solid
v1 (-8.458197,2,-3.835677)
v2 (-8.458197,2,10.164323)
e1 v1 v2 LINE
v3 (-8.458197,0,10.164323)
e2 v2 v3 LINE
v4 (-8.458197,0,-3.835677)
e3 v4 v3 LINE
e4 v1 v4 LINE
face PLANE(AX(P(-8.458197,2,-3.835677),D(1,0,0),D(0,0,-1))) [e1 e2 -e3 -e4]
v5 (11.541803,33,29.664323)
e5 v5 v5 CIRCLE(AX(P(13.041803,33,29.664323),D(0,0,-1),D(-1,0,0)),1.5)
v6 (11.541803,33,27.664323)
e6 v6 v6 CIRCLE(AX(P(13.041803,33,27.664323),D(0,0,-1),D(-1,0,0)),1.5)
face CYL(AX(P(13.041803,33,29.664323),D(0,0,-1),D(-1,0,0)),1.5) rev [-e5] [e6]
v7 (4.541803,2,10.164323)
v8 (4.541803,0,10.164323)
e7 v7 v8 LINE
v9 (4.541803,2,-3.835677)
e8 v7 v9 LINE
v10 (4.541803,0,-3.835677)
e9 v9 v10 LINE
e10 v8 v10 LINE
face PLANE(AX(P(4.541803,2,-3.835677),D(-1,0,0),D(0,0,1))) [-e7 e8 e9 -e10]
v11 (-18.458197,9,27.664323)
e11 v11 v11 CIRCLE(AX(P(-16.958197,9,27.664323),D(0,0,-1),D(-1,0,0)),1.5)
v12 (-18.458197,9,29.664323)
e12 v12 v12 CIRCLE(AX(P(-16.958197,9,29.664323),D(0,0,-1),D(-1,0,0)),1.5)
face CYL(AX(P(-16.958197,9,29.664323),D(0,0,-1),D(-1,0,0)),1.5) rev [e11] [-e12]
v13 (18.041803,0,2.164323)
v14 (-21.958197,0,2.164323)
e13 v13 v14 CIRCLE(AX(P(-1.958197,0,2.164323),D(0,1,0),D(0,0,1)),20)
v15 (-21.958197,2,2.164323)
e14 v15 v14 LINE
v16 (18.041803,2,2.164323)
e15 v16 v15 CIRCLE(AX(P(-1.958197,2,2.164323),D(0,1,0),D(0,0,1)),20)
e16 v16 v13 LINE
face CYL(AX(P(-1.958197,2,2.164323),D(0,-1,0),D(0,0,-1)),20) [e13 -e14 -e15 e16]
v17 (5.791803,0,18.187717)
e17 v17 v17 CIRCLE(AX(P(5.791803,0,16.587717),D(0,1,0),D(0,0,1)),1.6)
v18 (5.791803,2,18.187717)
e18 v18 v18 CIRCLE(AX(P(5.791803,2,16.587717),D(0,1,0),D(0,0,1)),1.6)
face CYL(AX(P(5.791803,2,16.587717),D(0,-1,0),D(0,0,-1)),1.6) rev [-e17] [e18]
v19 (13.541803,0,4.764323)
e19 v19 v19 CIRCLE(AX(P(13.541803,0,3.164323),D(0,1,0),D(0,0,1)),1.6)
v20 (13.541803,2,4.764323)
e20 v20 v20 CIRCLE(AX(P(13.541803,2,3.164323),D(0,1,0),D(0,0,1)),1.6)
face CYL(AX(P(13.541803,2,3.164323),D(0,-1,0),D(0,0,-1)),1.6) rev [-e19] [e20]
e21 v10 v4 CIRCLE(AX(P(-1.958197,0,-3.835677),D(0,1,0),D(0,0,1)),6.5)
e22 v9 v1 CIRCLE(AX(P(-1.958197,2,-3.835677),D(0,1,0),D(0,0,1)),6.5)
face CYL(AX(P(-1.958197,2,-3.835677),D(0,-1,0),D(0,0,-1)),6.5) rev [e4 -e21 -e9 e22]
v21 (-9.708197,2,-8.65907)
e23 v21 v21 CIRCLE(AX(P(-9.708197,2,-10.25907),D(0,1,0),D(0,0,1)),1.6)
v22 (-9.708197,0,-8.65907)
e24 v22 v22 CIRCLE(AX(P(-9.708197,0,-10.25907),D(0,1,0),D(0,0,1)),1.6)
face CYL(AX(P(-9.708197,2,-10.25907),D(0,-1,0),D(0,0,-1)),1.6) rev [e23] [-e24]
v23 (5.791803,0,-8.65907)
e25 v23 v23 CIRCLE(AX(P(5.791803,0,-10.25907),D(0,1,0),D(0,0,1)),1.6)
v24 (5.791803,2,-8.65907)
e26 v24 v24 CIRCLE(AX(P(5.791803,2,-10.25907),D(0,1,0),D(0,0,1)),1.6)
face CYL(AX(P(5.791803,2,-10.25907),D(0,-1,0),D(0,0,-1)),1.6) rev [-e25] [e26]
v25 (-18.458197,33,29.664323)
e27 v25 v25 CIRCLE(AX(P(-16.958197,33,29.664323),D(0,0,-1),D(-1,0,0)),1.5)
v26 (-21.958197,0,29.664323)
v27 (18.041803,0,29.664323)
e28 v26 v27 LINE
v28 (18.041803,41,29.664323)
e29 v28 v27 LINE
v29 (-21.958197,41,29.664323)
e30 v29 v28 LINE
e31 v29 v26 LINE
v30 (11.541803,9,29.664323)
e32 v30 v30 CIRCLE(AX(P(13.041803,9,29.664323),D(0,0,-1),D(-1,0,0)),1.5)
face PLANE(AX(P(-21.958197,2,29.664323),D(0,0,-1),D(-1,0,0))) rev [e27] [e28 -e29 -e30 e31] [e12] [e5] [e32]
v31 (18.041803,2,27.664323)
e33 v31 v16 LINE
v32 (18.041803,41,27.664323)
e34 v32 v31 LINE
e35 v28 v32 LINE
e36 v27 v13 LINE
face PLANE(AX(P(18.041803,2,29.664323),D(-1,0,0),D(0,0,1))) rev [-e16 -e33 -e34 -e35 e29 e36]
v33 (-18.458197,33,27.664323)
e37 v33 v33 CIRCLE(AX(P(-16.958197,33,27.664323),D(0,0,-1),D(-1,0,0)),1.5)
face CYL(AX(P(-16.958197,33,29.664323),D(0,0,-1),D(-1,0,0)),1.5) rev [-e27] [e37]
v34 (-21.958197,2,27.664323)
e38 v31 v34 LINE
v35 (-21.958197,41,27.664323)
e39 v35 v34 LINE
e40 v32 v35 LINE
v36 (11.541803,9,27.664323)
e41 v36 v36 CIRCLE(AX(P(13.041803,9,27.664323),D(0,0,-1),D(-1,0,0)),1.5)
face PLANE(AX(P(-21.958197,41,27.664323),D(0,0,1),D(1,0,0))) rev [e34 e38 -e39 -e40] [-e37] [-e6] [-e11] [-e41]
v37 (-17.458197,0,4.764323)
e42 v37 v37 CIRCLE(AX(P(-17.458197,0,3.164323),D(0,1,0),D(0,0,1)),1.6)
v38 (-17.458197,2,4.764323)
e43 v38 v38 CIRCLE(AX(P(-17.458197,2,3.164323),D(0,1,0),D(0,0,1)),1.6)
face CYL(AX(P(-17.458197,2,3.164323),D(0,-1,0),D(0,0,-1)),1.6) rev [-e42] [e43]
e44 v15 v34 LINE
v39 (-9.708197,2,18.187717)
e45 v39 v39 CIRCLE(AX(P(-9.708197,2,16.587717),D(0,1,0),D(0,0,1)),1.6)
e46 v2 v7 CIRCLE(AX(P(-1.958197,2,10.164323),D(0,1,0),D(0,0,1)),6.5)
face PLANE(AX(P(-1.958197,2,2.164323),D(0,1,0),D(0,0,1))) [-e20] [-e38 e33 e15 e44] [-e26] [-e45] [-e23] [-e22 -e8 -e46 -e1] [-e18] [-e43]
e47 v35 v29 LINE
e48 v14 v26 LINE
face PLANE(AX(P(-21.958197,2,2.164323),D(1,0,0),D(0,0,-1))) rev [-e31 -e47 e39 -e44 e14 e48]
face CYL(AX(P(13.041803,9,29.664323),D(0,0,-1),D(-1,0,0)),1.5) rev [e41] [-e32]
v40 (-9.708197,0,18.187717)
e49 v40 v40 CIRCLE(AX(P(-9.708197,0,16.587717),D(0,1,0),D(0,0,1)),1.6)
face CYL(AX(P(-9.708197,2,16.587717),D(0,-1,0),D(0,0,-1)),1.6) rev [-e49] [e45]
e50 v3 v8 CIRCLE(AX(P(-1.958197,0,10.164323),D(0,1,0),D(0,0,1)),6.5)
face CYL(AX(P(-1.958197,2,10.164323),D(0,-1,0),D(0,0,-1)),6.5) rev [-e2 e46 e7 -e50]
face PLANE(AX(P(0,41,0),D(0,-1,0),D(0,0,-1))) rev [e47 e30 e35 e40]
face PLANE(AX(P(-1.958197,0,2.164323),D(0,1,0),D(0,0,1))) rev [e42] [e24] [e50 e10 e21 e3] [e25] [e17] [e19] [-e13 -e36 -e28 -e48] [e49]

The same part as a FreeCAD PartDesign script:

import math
import FreeCAD as App
import Part
import Sketcher
Q = App.Units.Quantity


def add_polygon(sketch, points):
    """Adds a closed chain of lines whose ends are joined by coincident constraints."""
    first, n = sketch.GeometryCount, len(points)
    for a, b in zip(points, points[1:] + points[:1]):
        sketch.addGeometry(Part.LineSegment(App.Vector(*a, 0), App.Vector(*b, 0)), False)
    for i in range(n):
        sketch.addConstraint(Sketcher.Constraint("Coincident", first + i, 2, first + (i + 1) % n, 1))

doc = App.newDocument("Part")
body = doc.addObject("PartDesign::Body", "Body")

# Sketch on XZ plane
sketch1 = doc.addObject("Sketcher::SketchObject", "Sketch")
body.addObject(sketch1)
sketch1.AttachmentSupport = (doc.XZ_Plane, [""])
sketch1.MapMode = "FlatFace"
sketch1.addGeometry([
    Part.LineSegment(App.Vector(-22, 2.2, 0), App.Vector(-22, 29.7, 0)),  # 0
    Part.LineSegment(App.Vector(-22, 29.7, 0), App.Vector(18, 29.7, 0)),  # 1
    Part.LineSegment(App.Vector(18, 29.7, 0), App.Vector(18, 2.2, 0)),  # 2
    Part.ArcOfCircle(Part.Circle(App.Vector(-2, 2.2, 0), App.Vector(0, 0, 1), 20), math.radians(180), math.radians(360)),  # 3
    Part.Circle(App.Vector(-9.7, 16.6, 0), App.Vector(0, 0, 1), 1.6),  # 4
    Part.Circle(App.Vector(-17.5, 3.2, 0), App.Vector(0, 0, 1), 1.6),  # 5
    Part.Circle(App.Vector(5.8, 16.6, 0), App.Vector(0, 0, 1), 1.6),  # 6
    Part.ArcOfCircle(Part.Circle(App.Vector(-2, -3.8, 0), App.Vector(0, 0, 1), 6.5), math.radians(180), math.radians(360)),  # 7
    Part.LineSegment(App.Vector(4.5, -3.8, 0), App.Vector(4.5, 10.2, 0)),  # 8
    Part.ArcOfCircle(Part.Circle(App.Vector(-2, 10.2, 0), App.Vector(0, 0, 1), 6.5), math.radians(0), math.radians(180)),  # 9
    Part.LineSegment(App.Vector(-8.5, 10.2, 0), App.Vector(-8.5, -3.8, 0)),  # 10
    Part.Circle(App.Vector(13.5, 3.2, 0), App.Vector(0, 0, 1), 1.6),  # 11
    Part.Circle(App.Vector(-9.7, -10.3, 0), App.Vector(0, 0, 1), 1.6),  # 12
    Part.Circle(App.Vector(5.8, -10.3, 0), App.Vector(0, 0, 1), 1.6),  # 13
], False)
sketch1.addConstraint([
    Sketcher.Constraint("Coincident", 0, 2, 1, 1),
    Sketcher.Constraint("Coincident", 1, 2, 2, 1),
    Sketcher.Constraint("Tangent", 2, 2, 3, 2),
    Sketcher.Constraint("Tangent", 3, 1, 0, 1),
    Sketcher.Constraint("Tangent", 7, 2, 8, 1),
    Sketcher.Constraint("Tangent", 8, 2, 9, 1),
    Sketcher.Constraint("Tangent", 9, 2, 10, 1),
    Sketcher.Constraint("Tangent", 10, 2, 7, 1),
    Sketcher.Constraint("Vertical", 0),
    Sketcher.Constraint("Horizontal", 1),
    Sketcher.Constraint("Vertical", 2),
    Sketcher.Constraint("Vertical", 8),
    Sketcher.Constraint("Vertical", 10),
    Sketcher.Constraint("Equal", 4, 5),
    Sketcher.Constraint("Equal", 5, 6),
    Sketcher.Constraint("Equal", 6, 11),
    Sketcher.Constraint("Equal", 11, 12),
    Sketcher.Constraint("Equal", 12, 13),
    Sketcher.Constraint("Horizontal", 4, 3, 6, 3),
    Sketcher.Constraint("Horizontal", 5, 3, 11, 3),
    Sketcher.Constraint("Horizontal", 12, 3, 13, 3),
    Sketcher.Constraint("Vertical", 3, 3, 7, 3),
    Sketcher.Constraint("Vertical", 4, 3, 12, 3),
    Sketcher.Constraint("Vertical", 6, 3, 13, 3),
    Sketcher.Constraint("Radius", 3, Q("20 mm")),
    Sketcher.Constraint("Diameter", 4, Q("3.2 mm")),
    Sketcher.Constraint("Radius", 7, Q("6.5 mm")),
    Sketcher.Constraint("DistanceY", 8, 1, 8, 2, Q("14 mm")),
    Sketcher.Constraint("DistanceY", 0, 1, 0, 2, Q("27.5 mm")),
    Sketcher.Constraint("DistanceY", 3, 3, 5, 3, Q("1 mm")),
    Sketcher.Constraint("DistanceY", 7, 3, 3, 3, Q("6 mm")),
    Sketcher.Constraint("DistanceX", 7, 2, 11, 3, Q("9 mm")),
    Sketcher.Constraint("DistanceX", 5, 3, 9, 2, Q("9 mm")),
    Sketcher.Constraint("DistanceX", 4, 3, 6, 3, Q("15.5 mm")),
    Sketcher.Constraint("DistanceX", 4, 3, 3, 3, Q("7.75 mm")),
    Sketcher.Constraint("DistanceY", 12, 3, -1, 1, Q("10.25907 mm")),
    Sketcher.Constraint("DistanceX", 3, 3, -1, 1, Q("1.958197 mm")),
    Sketcher.Constraint("DistanceY", -1, 1, 3, 3, Q("2.164323 mm")),
    Sketcher.Constraint("DistanceY", -1, 1, 4, 3, Q("16.587717 mm")),
])
pad1 = doc.addObject("PartDesign::Pad", "Pad")
body.addObject(pad1)
pad1.Profile = sketch1
pad1.Length = 2
pad1.Reversed = True

# Sketch on XZ plane
sketch2 = doc.addObject("Sketcher::SketchObject", "Sketch001")
body.addObject(sketch2)
sketch2.AttachmentSupport = (doc.XZ_Plane, [""])
sketch2.MapMode = "FlatFace"
sketch2.AttachmentOffset = App.Placement(App.Vector(0, 0, -2), App.Rotation())
add_polygon(sketch2, [(-22, 27.7), (-22, 29.7), (18, 29.7), (18, 27.7)])  # lines 0-3
sketch2.addConstraint([
    Sketcher.Constraint("Vertical", 0),
    Sketcher.Constraint("Horizontal", 1),
    Sketcher.Constraint("Vertical", 2),
    Sketcher.Constraint("Horizontal", 3),
    Sketcher.Constraint("DistanceX", 1, 1, 1, 2, Q("40 mm")),
    Sketcher.Constraint("DistanceY", 0, 1, 0, 2, Q("2 mm")),
    Sketcher.Constraint("DistanceX", 0, 2, -1, 1, Q("21.958197 mm")),
    Sketcher.Constraint("DistanceY", -1, 1, 0, 2, Q("29.664323 mm")),
])
pad2 = doc.addObject("PartDesign::Pad", "Pad001")
body.addObject(pad2)
pad2.Profile = sketch2
pad2.Length = 39
pad2.Reversed = True

# Sketch on XY plane
sketch3 = doc.addObject("Sketcher::SketchObject", "Sketch002")
body.addObject(sketch3)
sketch3.AttachmentSupport = (doc.XY_Plane, [""])
sketch3.MapMode = "FlatFace"
sketch3.AttachmentOffset = App.Placement(App.Vector(0, 0, 27.664323), App.Rotation())
sketch3.addGeometry([
    Part.Circle(App.Vector(13, 33, 0), App.Vector(0, 0, 1), 1.5),
    Part.Circle(App.Vector(13, 9, 0), App.Vector(0, 0, 1), 1.5),
    Part.Circle(App.Vector(-17, 33, 0), App.Vector(0, 0, 1), 1.5),
    Part.Circle(App.Vector(-17, 9, 0), App.Vector(0, 0, 1), 1.5),
], False)
sketch3.addConstraint([
    Sketcher.Constraint("Equal", 0, 1),
    Sketcher.Constraint("Equal", 1, 2),
    Sketcher.Constraint("Equal", 2, 3),
    Sketcher.Constraint("Horizontal", 0, 3, 2, 3),
    Sketcher.Constraint("Horizontal", 1, 3, 3, 3),
    Sketcher.Constraint("Vertical", 0, 3, 1, 3),
    Sketcher.Constraint("Vertical", 2, 3, 3, 3),
    Sketcher.Constraint("Diameter", 0, Q("3 mm")),
    Sketcher.Constraint("DistanceY", -1, 1, 0, 3, Q("33 mm")),
    Sketcher.Constraint("DistanceY", -1, 1, 1, 3, Q("9 mm")),
    Sketcher.Constraint("DistanceX", 2, 3, 0, 3, Q("30 mm")),
    Sketcher.Constraint("DistanceX", -1, 1, 0, 3, Q("13.041803 mm")),
])
pocket1 = doc.addObject("PartDesign::Pocket", "Pocket")
body.addObject(pocket1)
pocket1.Profile = sketch3
pocket1.Type = "ThroughAll"
pocket1.Reversed = True

doc.recompute()
